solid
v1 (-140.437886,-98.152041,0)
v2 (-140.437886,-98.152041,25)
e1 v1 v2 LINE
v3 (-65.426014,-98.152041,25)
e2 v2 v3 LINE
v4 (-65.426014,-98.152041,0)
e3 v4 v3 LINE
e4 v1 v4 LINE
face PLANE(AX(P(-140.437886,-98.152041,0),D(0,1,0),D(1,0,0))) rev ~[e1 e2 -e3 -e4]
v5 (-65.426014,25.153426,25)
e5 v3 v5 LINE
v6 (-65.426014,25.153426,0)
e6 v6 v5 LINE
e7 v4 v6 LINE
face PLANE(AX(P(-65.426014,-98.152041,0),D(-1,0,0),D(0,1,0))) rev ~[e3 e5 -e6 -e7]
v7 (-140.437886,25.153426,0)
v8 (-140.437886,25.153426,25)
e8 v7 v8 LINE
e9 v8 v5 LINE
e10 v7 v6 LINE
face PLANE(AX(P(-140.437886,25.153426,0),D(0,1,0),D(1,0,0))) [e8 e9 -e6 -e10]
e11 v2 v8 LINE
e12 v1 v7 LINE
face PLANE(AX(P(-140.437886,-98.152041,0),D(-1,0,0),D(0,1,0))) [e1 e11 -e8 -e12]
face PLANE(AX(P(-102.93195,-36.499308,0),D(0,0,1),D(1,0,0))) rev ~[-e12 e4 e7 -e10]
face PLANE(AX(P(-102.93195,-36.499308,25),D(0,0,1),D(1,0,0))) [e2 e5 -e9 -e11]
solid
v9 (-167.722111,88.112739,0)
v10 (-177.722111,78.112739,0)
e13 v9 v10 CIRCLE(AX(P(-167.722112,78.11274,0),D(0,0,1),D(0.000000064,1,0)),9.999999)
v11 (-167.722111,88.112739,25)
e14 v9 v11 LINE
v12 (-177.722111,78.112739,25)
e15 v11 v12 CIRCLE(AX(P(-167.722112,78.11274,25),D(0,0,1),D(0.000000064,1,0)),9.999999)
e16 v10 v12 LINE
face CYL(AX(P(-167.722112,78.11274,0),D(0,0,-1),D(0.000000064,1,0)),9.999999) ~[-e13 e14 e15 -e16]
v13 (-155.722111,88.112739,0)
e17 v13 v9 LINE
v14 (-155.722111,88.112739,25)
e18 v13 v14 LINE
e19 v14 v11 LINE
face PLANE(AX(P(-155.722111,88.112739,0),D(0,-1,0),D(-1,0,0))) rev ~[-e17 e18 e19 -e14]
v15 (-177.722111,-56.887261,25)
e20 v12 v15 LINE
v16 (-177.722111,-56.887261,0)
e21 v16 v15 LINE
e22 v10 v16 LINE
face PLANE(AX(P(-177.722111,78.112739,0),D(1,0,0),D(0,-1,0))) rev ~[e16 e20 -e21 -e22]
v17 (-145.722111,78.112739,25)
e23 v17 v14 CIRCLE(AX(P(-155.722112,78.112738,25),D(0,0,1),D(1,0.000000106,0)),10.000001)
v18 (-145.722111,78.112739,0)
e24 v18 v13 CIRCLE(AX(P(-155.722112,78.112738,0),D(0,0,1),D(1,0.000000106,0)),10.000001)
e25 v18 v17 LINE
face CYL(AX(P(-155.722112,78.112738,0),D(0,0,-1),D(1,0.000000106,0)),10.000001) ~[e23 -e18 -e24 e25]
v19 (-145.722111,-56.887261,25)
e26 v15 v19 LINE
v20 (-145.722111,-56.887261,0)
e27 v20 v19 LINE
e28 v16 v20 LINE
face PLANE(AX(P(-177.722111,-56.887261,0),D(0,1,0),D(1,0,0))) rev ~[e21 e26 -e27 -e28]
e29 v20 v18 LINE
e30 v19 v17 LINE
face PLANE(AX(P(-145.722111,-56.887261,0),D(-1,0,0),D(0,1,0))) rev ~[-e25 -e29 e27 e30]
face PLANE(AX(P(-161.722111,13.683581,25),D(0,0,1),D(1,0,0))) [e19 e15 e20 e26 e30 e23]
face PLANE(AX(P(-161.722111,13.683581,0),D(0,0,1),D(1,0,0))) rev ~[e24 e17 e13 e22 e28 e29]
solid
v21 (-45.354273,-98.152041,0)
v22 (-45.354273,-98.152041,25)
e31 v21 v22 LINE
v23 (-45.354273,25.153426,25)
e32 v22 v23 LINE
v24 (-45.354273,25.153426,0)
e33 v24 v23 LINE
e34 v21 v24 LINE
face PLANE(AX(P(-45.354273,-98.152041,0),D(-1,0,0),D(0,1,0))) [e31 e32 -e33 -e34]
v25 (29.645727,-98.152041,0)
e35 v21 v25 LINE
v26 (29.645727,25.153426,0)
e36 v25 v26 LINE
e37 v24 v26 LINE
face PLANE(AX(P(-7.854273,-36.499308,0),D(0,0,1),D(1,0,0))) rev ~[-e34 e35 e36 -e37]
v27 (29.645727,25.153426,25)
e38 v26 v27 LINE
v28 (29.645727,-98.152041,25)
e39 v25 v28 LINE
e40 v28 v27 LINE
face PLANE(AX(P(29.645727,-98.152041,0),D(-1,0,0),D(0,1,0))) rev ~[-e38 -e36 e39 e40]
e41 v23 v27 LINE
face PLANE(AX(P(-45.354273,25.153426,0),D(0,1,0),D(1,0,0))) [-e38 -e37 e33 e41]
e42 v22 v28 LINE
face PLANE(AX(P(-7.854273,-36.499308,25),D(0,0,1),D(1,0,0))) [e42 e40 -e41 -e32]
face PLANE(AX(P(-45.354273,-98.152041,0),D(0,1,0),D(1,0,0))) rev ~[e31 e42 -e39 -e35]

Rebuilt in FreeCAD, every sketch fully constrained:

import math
import FreeCAD as App
import Part
import Sketcher

V = App.Vector
Q = App.Units.Quantity

doc = App.newDocument("Part")
body = doc.addObject("PartDesign::Body", "Body")
body.AllowCompound = True

sketch1 = doc.addObject("Sketcher::SketchObject", "Sketch")
body.addObject(sketch1)
sketch1.AttachmentSupport = (doc.XY_Plane, [""])
sketch1.MapMode = "FlatFace"
sketch1.addGeometry([
    Part.LineSegment(V(-155.722111, 88.112739, 0), V(-167.722111, 88.112739, 0)),
    Part.ArcOfCircle(Part.Circle(V(-167.722112, 78.11274, 0), V(0, 0, 1), 9.999999), math.radians(89.999996), math.radians(180.000004)),
    Part.LineSegment(V(-177.722111, 78.112739, 0), V(-177.722111, -56.887261, 0)),
    Part.LineSegment(V(-177.722111, -56.887261, 0), V(-145.722111, -56.887261, 0)),
    Part.LineSegment(V(-145.722111, -56.887261, 0), V(-145.722111, 78.112739, 0)),
    Part.ArcOfCircle(Part.Circle(V(-155.722112, 78.112738, 0), V(0, 0, 1), 10.000001), math.radians(0.000006), math.radians(89.999994)),
    Part.LineSegment(V(-140.437886, 25.153426, 0), V(-140.437886, -98.152041, 0)),
    Part.LineSegment(V(-140.437886, -98.152041, 0), V(-65.426014, -98.152041, 0)),
    Part.LineSegment(V(-65.426014, -98.152041, 0), V(-65.426014, 25.153426, 0)),
    Part.LineSegment(V(-65.426014, 25.153426, 0), V(-140.437886, 25.153426, 0)),
    Part.LineSegment(V(-45.354273, 25.153426, 0), V(-45.354273, -98.152041, 0)),
    Part.LineSegment(V(-45.354273, -98.152041, 0), V(29.645727, -98.152041, 0)),
    Part.LineSegment(V(29.645727, -98.152041, 0), V(29.645727, 25.153426, 0)),
    Part.LineSegment(V(29.645727, 25.153426, 0), V(-45.354273, 25.153426, 0)),
], False)
sketch1.addConstraint([
    Sketcher.Constraint("Tangent", 0, 2, 1, 1),
    Sketcher.Constraint("Tangent", 1, 2, 2, 1),
    Sketcher.Constraint("Coincident", 2, 2, 3, 1),
    Sketcher.Constraint("Coincident", 3, 2, 4, 1),
    Sketcher.Constraint("Tangent", 4, 2, 5, 1),
    Sketcher.Constraint("Tangent", 5, 2, 0, 1),
    Sketcher.Constraint("Coincident", 6, 2, 7, 1),
    Sketcher.Constraint("Coincident", 7, 2, 8, 1),
    Sketcher.Constraint("Coincident", 8, 2, 9, 1),
    Sketcher.Constraint("Coincident", 9, 2, 6, 1),
    Sketcher.Constraint("Coincident", 10, 2, 11, 1),
    Sketcher.Constraint("Coincident", 11, 2, 12, 1),
    Sketcher.Constraint("Coincident", 12, 2, 13, 1),
    Sketcher.Constraint("Coincident", 13, 2, 10, 1),
    Sketcher.Constraint("Horizontal", 0),
    Sketcher.Constraint("Vertical", 2),
    Sketcher.Constraint("Horizontal", 3),
    Sketcher.Constraint("Vertical", 4),
    Sketcher.Constraint("Vertical", 6),
    Sketcher.Constraint("Horizontal", 7),
    Sketcher.Constraint("Vertical", 8),
    Sketcher.Constraint("Horizontal", 9),
    Sketcher.Constraint("Vertical", 10),
    Sketcher.Constraint("Horizontal", 11),
    Sketcher.Constraint("Vertical", 12),
    Sketcher.Constraint("Horizontal", 13),
    Sketcher.Constraint("Equal", 1, 5),
    Sketcher.Constraint("Horizontal", 7, 2, 10, 2),
    Sketcher.Constraint("Horizontal", 9, 2, 12, 2),
    Sketcher.Constraint("Radius", 1, Q("9.999999 mm")),
    Sketcher.Constraint("DistanceX", 0, 2, 0, 1, Q("12 mm")),
    Sketcher.Constraint("DistanceX", 11, 1, 11, 2, Q("75 mm")),
    Sketcher.Constraint("DistanceY", 2, 2, 2, 1, Q("135 mm")),
    Sketcher.Constraint("DistanceX", 7, 1, 7, 2, Q("75.011872 mm")),
    Sketcher.Constraint("DistanceX", 5, 3, 7, 2, Q("90.296098 mm")),
    Sketcher.Constraint("DistanceY", 6, 2, 6, 1, Q("123.305467 mm")),
    Sketcher.Constraint("DistanceX", 1, 3, -1, 1, Q("167.722112 mm")),
    Sketcher.Constraint("DistanceY", -1, 1, 1, 3, Q("78.11274 mm")),
    Sketcher.Constraint("DistanceY", 6, 2, -1, 1, Q("98.152041 mm")),
    Sketcher.Constraint("DistanceX", 7, 2, 10, 2, Q("20.071741 mm")),
])
pad1 = doc.addObject("PartDesign::Pad", "Pad")
body.addObject(pad1)
pad1.Profile = sketch1
pad1.Length = 25

doc.recompute()
